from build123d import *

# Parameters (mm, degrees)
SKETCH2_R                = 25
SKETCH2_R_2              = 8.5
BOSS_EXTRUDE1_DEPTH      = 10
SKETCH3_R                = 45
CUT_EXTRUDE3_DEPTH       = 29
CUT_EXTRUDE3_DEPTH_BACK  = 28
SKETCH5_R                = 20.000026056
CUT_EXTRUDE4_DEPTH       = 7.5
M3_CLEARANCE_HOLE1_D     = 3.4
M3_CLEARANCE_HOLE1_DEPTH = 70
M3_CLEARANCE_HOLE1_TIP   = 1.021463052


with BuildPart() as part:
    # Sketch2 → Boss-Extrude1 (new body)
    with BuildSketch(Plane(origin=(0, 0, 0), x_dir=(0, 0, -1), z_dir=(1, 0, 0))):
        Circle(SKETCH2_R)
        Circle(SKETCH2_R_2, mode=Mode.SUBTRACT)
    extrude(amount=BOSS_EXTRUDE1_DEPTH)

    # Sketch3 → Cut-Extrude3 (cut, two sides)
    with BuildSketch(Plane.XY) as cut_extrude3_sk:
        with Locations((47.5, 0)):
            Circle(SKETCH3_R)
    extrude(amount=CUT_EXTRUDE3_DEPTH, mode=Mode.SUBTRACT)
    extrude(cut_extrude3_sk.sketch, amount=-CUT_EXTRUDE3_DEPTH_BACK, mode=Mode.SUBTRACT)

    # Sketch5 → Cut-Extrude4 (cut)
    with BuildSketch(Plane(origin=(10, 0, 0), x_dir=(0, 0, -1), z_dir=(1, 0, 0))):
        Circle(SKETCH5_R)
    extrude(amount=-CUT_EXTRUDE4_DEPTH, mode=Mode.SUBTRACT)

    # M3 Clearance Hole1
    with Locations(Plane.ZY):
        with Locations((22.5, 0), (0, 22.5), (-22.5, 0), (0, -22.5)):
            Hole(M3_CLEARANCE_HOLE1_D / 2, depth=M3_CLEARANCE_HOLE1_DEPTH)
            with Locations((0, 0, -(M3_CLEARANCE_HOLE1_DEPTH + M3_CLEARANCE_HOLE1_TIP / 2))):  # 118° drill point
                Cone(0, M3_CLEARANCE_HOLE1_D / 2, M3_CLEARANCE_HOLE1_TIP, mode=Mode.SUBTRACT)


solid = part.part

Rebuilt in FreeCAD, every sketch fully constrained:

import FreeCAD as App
import Part
import Sketcher

doc = App.newDocument("Part")
params = doc.addObject("Spreadsheet::Sheet", "Params")
for row, (alias, value) in enumerate([
    ("sketch1_diameter", "50 mm"),
    ("sketch1_diameter2", "17 mm"),
    ("pad1_length", "10 mm"),
    ("sketch2_diameter", "90 mm"),
    ("pocket2_length", "7.5 mm"),
    ("sketch4_diameter", "3.4 mm"),
    ("hole_diameter", "3.4 mm"),
    ("hole_depth", "70 mm"),
], start=1):
    params.set(f"A{row}", alias)
    params.set(f"B{row}", "=" + value)
    params.setAlias(f"B{row}", alias)

body = doc.addObject("PartDesign::Body", "Body")

sketch1 = body.newObject("Sketcher::SketchObject", "Sketch")
sketch1.AttachmentSupport = (doc.getObject("YZ_Plane"), [""])
sketch1.MapMode = "FlatFace"
sketch1.addGeometry(Part.Circle(App.Vector(0, 0, 0), App.Vector(0, 0, 1), 25), False)
sketch1.addGeometry(Part.Circle(App.Vector(0, 0, 0), App.Vector(0, 0, 1), 8), False)
sketch1.addConstraint(Sketcher.Constraint("Coincident", 0, 3, -1, 1))
sketch1.addConstraint(Sketcher.Constraint("Coincident", 1, 3, -1, 1))
sketch1.addConstraint(Sketcher.Constraint("Diameter", 0, 50.0))
sketch1.addConstraint(Sketcher.Constraint("Diameter", 1, 17.0))
sketch1.setExpression("Constraints[2]", "Params.sketch1_diameter")
sketch1.setExpression("Constraints[3]", "Params.sketch1_diameter2")
pad1 = body.newObject("PartDesign::Pad", "Pad")
pad1.Profile = sketch1
pad1.setExpression("Length", "Params.pad1_length")

sketch2 = body.newObject("Sketcher::SketchObject", "Sketch001")
sketch2.AttachmentSupport = (doc.getObject("XY_Plane"), [""])
sketch2.MapMode = "FlatFace"
sketch2.addGeometry(Part.Circle(App.Vector(48, 0, 0), App.Vector(0, 0, 1), 45), False)
sketch2.addConstraint(Sketcher.Constraint("PointOnObject", 0, 3, -1))
sketch2.addConstraint(Sketcher.Constraint("Diameter", 0, 90.0))
sketch2.addConstraint(Sketcher.Constraint("DistanceX", -1, 1, 0, 3, 47.5))
sketch2.setExpression("Constraints[1]", "Params.sketch2_diameter")
pocket1 = body.newObject("PartDesign::Pocket", "Pocket")
pocket1.Profile = sketch2
pocket1.Type = "ThroughAll"
pocket1.Midplane = True

sketch3 = body.newObject("Sketcher::SketchObject", "Sketch002")
sketch3.AttachmentSupport = (doc.getObject("YZ_Plane"), [""])
sketch3.MapMode = "FlatFace"
sketch3.AttachmentOffset = App.Placement(App.Vector(0, 0, 10), App.Rotation())
sketch3.addGeometry(Part.Circle(App.Vector(0, 0, 0), App.Vector(0, 0, 1), 20.000026), False)
sketch3.addConstraint(Sketcher.Constraint("Coincident", 0, 3, -1, 1))
sketch3.addConstraint(Sketcher.Constraint("Diameter", 0, 40.000052))
pocket2 = body.newObject("PartDesign::Pocket", "Pocket001")
pocket2.Profile = sketch3
pocket2.setExpression("Length", "Params.pocket2_length")

sketch4 = body.newObject("Sketcher::SketchObject", "Sketch003")
sketch4.AttachmentSupport = (doc.getObject("YZ_Plane"), [""])
sketch4.MapMode = "FlatFace"
sketch4.addGeometry(Part.Circle(App.Vector(0, 22.5, 0), App.Vector(0, 0, 1), 1.7), False)
sketch4.addGeometry(Part.Circle(App.Vector(22.5, 0, 0), App.Vector(0, 0, 1), 1.7), False)
sketch4.addGeometry(Part.Circle(App.Vector(0, -22.5, 0), App.Vector(0, 0, 1), 1.7), False)
sketch4.addGeometry(Part.Circle(App.Vector(-22.5, 0, 0), App.Vector(0, 0, 1), 1.7), False)
sketch4.addConstraint(Sketcher.Constraint("Equal", 0, 1))
sketch4.addConstraint(Sketcher.Constraint("Equal", 1, 2))
sketch4.addConstraint(Sketcher.Constraint("Equal", 2, 3))
sketch4.addConstraint(Sketcher.Constraint("Symmetric", 0, 3, 2, 3, -1, 1))
sketch4.addConstraint(Sketcher.Constraint("Symmetric", 1, 3, 3, 3, -1, 1))
sketch4.addConstraint(Sketcher.Constraint("PointOnObject", 0, 3, -2))
sketch4.addConstraint(Sketcher.Constraint("PointOnObject", 1, 3, -1))
sketch4.addConstraint(Sketcher.Constraint("Diameter", 0, 3.4))
sketch4.addConstraint(Sketcher.Constraint("DistanceY", 2, 3, 0, 3, 45.0))
sketch4.addConstraint(Sketcher.Constraint("DistanceX", 3, 3, 1, 3, 45.0))
sketch4.setExpression("Constraints[7]", "Params.sketch4_diameter")
doc.recompute()
hole = body.newObject("PartDesign::Hole", "Hole")
hole.Profile = sketch4
hole.ThreadType = "None"
hole.setExpression("Diameter", "Params.hole_diameter")
hole.DepthType = "Dimension"
hole.setExpression("Depth", "Params.hole_depth")
hole.DrillPoint = "Angled"
hole.DrillPointAngle = 118
hole.Reversed = True

doc.recompute()
